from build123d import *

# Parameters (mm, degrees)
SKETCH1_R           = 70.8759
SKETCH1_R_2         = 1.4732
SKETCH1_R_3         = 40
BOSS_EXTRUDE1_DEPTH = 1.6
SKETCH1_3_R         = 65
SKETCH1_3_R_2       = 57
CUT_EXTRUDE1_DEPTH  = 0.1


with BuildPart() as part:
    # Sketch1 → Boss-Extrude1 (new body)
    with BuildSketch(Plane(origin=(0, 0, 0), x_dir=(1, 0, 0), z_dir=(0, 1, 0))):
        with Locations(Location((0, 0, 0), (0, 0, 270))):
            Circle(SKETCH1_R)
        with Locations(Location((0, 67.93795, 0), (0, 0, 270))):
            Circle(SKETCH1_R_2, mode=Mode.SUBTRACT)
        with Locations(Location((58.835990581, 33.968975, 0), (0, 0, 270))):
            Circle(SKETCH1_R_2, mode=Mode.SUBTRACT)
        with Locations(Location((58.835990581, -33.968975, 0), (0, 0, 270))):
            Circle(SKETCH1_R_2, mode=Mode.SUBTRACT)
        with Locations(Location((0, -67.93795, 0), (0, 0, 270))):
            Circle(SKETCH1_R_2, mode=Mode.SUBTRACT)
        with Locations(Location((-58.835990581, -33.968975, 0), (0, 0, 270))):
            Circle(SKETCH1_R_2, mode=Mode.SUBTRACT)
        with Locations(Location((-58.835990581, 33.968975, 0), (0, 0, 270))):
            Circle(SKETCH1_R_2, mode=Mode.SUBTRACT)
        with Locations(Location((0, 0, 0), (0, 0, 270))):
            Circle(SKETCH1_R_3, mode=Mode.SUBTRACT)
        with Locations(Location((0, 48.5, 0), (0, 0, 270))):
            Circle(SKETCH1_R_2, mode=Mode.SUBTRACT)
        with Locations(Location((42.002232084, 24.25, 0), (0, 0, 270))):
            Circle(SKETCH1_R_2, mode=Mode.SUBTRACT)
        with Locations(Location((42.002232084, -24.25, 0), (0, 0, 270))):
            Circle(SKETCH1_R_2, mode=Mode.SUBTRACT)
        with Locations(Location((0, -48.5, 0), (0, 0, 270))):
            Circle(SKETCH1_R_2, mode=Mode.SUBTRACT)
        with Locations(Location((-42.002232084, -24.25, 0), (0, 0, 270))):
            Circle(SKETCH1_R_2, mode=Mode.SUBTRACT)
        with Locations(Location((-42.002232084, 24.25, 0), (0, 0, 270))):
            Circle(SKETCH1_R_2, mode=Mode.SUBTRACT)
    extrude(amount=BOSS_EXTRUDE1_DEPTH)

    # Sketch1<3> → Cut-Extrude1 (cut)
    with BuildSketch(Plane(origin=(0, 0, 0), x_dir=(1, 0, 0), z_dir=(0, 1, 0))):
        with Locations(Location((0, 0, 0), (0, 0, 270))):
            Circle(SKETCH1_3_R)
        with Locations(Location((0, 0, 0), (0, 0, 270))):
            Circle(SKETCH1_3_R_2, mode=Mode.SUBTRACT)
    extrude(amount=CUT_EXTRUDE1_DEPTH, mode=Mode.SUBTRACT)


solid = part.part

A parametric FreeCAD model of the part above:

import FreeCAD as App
import Part
import Sketcher

V = App.Vector

doc = App.newDocument("Part")
body = doc.addObject("PartDesign::Body", "Body")

sketch1 = doc.addObject("Sketcher::SketchObject", "Sketch")
body.addObject(sketch1)
sketch1.AttachmentSupport = (doc.XZ_Plane, [""])
sketch1.MapMode = "FlatFace"
sketch1.addGeometry(Part.Circle(V(0, 0, 0), V(0, 0, 1), 70.8759), False)
sketch1.addGeometry(Part.Circle(V(-58.835991, -33.968975, 0), V(0, 0, 1), 1.4732), False)
sketch1.addGeometry(Part.Circle(V(-42.002232, -24.25, 0), V(0, 0, 1), 1.4732), False)
sketch1.addGeometry(Part.Circle(V(0, -67.93795, 0), V(0, 0, 1), 1.4732), False)
sketch1.addGeometry(Part.Circle(V(-58.835991, 33.968975, 0), V(0, 0, 1), 1.4732), False)
sketch1.addGeometry(Part.Circle(V(-42.002232, 24.25, 0), V(0, 0, 1), 1.4732), False)
sketch1.addGeometry(Part.Circle(V(0, -48.5, 0), V(0, 0, 1), 1.4732), False)
sketch1.addGeometry(Part.Circle(V(42.002232, -24.25, 0), V(0, 0, 1), 1.4732), False)
sketch1.addGeometry(Part.Circle(V(58.835991, -33.968975, 0), V(0, 0, 1), 1.4732), False)
sketch1.addGeometry(Part.Circle(V(0, 0, 0), V(0, 0, 1), 40), False)
sketch1.addGeometry(Part.Circle(V(0, 48.5, 0), V(0, 0, 1), 1.4732), False)
sketch1.addGeometry(Part.Circle(V(0, 67.93795, 0), V(0, 0, 1), 1.4732), False)
sketch1.addGeometry(Part.Circle(V(42.002232, 24.25, 0), V(0, 0, 1), 1.4732), False)
sketch1.addGeometry(Part.Circle(V(58.835991, 33.968975, 0), V(0, 0, 1), 1.4732), False)
sketch1.addConstraint(Sketcher.Constraint("Coincident", 0, 3, -1, 1))
sketch1.addConstraint(Sketcher.Constraint("Coincident", 9, 3, -1, 1))
sketch1.addConstraint(Sketcher.Constraint("Equal", 1, 2))
sketch1.addConstraint(Sketcher.Constraint("Equal", 2, 3))
sketch1.addConstraint(Sketcher.Constraint("Equal", 3, 4))
sketch1.addConstraint(Sketcher.Constraint("Equal", 4, 5))
sketch1.addConstraint(Sketcher.Constraint("Equal", 5, 6))
sketch1.addConstraint(Sketcher.Constraint("Equal", 6, 7))
sketch1.addConstraint(Sketcher.Constraint("Equal", 7, 8))
sketch1.addConstraint(Sketcher.Constraint("Equal", 8, 10))
sketch1.addConstraint(Sketcher.Constraint("Equal", 10, 11))
sketch1.addConstraint(Sketcher.Constraint("Equal", 11, 12))
sketch1.addConstraint(Sketcher.Constraint("Equal", 12, 13))
sketch1.addConstraint(Sketcher.Constraint("Symmetric", 5, 3, 7, 3, -1, 1))
sketch1.addConstraint(Sketcher.Constraint("Symmetric", 4, 3, 8, 3, -1, 1))
sketch1.addConstraint(Sketcher.Constraint("Symmetric", 6, 3, 10, 3, -1, 1))
sketch1.addConstraint(Sketcher.Constraint("Symmetric", 3, 3, 11, 3, -1, 1))
sketch1.addConstraint(Sketcher.Constraint("Symmetric", 2, 3, 12, 3, -1, 1))
sketch1.addConstraint(Sketcher.Constraint("Symmetric", 1, 3, 13, 3, -1, 1))
sketch1.addConstraint(Sketcher.Constraint("Symmetric", 2, 3, 7, 3, -2))
sketch1.addConstraint(Sketcher.Constraint("Symmetric", 1, 3, 8, 3, -2))
sketch1.addConstraint(Sketcher.Constraint("PointOnObject", 3, 3, -2))
sketch1.addConstraint(Sketcher.Constraint("PointOnObject", 6, 3, -2))
sketch1.addConstraint(Sketcher.Constraint("Diameter", 9, 80.0))
sketch1.addConstraint(Sketcher.Constraint("Diameter", 0, 141.7518))
sketch1.addConstraint(Sketcher.Constraint("Diameter", 1, 2.9464))
sketch1.addConstraint(Sketcher.Constraint("DistanceY", 6, 3, -1, 1, 48.5))
sketch1.addConstraint(Sketcher.Constraint("DistanceY", 2, 3, 5, 3, 48.5))
sketch1.addConstraint(Sketcher.Constraint("DistanceX", 1, 3, -1, 1, 58.835991))
sketch1.addConstraint(Sketcher.Constraint("DistanceY", 3, 3, -1, 1, 67.93795))
sketch1.addConstraint(Sketcher.Constraint("DistanceX", 1, 3, 2, 3, 16.833758))
sketch1.addConstraint(Sketcher.Constraint("DistanceY", 1, 3, 4, 3, 67.93795))
pad1 = doc.addObject("PartDesign::Pad", "Pad")
body.addObject(pad1)
pad1.Profile = sketch1
pad1.Length = 1.6
pad1.Reversed = True

sketch2 = doc.addObject("Sketcher::SketchObject", "Sketch001")
body.addObject(sketch2)
sketch2.AttachmentSupport = (doc.XZ_Plane, [""])
sketch2.MapMode = "FlatFace"
sketch2.addGeometry(Part.Circle(V(0, 0, 0), V(0, 0, 1), 65), False)
sketch2.addGeometry(Part.Circle(V(0, 0, 0), V(0, 0, 1), 57), False)
sketch2.addConstraint(Sketcher.Constraint("Coincident", 0, 3, -1, 1))
sketch2.addConstraint(Sketcher.Constraint("Coincident", 1, 3, -1, 1))
sketch2.addConstraint(Sketcher.Constraint("Diameter", 0, 130.0))
sketch2.addConstraint(Sketcher.Constraint("Diameter", 1, 114.0))
pocket1 = doc.addObject("PartDesign::Pocket", "Pocket")
body.addObject(pocket1)
pocket1.Profile = sketch2
pocket1.Length = 0.1

doc.recompute()
